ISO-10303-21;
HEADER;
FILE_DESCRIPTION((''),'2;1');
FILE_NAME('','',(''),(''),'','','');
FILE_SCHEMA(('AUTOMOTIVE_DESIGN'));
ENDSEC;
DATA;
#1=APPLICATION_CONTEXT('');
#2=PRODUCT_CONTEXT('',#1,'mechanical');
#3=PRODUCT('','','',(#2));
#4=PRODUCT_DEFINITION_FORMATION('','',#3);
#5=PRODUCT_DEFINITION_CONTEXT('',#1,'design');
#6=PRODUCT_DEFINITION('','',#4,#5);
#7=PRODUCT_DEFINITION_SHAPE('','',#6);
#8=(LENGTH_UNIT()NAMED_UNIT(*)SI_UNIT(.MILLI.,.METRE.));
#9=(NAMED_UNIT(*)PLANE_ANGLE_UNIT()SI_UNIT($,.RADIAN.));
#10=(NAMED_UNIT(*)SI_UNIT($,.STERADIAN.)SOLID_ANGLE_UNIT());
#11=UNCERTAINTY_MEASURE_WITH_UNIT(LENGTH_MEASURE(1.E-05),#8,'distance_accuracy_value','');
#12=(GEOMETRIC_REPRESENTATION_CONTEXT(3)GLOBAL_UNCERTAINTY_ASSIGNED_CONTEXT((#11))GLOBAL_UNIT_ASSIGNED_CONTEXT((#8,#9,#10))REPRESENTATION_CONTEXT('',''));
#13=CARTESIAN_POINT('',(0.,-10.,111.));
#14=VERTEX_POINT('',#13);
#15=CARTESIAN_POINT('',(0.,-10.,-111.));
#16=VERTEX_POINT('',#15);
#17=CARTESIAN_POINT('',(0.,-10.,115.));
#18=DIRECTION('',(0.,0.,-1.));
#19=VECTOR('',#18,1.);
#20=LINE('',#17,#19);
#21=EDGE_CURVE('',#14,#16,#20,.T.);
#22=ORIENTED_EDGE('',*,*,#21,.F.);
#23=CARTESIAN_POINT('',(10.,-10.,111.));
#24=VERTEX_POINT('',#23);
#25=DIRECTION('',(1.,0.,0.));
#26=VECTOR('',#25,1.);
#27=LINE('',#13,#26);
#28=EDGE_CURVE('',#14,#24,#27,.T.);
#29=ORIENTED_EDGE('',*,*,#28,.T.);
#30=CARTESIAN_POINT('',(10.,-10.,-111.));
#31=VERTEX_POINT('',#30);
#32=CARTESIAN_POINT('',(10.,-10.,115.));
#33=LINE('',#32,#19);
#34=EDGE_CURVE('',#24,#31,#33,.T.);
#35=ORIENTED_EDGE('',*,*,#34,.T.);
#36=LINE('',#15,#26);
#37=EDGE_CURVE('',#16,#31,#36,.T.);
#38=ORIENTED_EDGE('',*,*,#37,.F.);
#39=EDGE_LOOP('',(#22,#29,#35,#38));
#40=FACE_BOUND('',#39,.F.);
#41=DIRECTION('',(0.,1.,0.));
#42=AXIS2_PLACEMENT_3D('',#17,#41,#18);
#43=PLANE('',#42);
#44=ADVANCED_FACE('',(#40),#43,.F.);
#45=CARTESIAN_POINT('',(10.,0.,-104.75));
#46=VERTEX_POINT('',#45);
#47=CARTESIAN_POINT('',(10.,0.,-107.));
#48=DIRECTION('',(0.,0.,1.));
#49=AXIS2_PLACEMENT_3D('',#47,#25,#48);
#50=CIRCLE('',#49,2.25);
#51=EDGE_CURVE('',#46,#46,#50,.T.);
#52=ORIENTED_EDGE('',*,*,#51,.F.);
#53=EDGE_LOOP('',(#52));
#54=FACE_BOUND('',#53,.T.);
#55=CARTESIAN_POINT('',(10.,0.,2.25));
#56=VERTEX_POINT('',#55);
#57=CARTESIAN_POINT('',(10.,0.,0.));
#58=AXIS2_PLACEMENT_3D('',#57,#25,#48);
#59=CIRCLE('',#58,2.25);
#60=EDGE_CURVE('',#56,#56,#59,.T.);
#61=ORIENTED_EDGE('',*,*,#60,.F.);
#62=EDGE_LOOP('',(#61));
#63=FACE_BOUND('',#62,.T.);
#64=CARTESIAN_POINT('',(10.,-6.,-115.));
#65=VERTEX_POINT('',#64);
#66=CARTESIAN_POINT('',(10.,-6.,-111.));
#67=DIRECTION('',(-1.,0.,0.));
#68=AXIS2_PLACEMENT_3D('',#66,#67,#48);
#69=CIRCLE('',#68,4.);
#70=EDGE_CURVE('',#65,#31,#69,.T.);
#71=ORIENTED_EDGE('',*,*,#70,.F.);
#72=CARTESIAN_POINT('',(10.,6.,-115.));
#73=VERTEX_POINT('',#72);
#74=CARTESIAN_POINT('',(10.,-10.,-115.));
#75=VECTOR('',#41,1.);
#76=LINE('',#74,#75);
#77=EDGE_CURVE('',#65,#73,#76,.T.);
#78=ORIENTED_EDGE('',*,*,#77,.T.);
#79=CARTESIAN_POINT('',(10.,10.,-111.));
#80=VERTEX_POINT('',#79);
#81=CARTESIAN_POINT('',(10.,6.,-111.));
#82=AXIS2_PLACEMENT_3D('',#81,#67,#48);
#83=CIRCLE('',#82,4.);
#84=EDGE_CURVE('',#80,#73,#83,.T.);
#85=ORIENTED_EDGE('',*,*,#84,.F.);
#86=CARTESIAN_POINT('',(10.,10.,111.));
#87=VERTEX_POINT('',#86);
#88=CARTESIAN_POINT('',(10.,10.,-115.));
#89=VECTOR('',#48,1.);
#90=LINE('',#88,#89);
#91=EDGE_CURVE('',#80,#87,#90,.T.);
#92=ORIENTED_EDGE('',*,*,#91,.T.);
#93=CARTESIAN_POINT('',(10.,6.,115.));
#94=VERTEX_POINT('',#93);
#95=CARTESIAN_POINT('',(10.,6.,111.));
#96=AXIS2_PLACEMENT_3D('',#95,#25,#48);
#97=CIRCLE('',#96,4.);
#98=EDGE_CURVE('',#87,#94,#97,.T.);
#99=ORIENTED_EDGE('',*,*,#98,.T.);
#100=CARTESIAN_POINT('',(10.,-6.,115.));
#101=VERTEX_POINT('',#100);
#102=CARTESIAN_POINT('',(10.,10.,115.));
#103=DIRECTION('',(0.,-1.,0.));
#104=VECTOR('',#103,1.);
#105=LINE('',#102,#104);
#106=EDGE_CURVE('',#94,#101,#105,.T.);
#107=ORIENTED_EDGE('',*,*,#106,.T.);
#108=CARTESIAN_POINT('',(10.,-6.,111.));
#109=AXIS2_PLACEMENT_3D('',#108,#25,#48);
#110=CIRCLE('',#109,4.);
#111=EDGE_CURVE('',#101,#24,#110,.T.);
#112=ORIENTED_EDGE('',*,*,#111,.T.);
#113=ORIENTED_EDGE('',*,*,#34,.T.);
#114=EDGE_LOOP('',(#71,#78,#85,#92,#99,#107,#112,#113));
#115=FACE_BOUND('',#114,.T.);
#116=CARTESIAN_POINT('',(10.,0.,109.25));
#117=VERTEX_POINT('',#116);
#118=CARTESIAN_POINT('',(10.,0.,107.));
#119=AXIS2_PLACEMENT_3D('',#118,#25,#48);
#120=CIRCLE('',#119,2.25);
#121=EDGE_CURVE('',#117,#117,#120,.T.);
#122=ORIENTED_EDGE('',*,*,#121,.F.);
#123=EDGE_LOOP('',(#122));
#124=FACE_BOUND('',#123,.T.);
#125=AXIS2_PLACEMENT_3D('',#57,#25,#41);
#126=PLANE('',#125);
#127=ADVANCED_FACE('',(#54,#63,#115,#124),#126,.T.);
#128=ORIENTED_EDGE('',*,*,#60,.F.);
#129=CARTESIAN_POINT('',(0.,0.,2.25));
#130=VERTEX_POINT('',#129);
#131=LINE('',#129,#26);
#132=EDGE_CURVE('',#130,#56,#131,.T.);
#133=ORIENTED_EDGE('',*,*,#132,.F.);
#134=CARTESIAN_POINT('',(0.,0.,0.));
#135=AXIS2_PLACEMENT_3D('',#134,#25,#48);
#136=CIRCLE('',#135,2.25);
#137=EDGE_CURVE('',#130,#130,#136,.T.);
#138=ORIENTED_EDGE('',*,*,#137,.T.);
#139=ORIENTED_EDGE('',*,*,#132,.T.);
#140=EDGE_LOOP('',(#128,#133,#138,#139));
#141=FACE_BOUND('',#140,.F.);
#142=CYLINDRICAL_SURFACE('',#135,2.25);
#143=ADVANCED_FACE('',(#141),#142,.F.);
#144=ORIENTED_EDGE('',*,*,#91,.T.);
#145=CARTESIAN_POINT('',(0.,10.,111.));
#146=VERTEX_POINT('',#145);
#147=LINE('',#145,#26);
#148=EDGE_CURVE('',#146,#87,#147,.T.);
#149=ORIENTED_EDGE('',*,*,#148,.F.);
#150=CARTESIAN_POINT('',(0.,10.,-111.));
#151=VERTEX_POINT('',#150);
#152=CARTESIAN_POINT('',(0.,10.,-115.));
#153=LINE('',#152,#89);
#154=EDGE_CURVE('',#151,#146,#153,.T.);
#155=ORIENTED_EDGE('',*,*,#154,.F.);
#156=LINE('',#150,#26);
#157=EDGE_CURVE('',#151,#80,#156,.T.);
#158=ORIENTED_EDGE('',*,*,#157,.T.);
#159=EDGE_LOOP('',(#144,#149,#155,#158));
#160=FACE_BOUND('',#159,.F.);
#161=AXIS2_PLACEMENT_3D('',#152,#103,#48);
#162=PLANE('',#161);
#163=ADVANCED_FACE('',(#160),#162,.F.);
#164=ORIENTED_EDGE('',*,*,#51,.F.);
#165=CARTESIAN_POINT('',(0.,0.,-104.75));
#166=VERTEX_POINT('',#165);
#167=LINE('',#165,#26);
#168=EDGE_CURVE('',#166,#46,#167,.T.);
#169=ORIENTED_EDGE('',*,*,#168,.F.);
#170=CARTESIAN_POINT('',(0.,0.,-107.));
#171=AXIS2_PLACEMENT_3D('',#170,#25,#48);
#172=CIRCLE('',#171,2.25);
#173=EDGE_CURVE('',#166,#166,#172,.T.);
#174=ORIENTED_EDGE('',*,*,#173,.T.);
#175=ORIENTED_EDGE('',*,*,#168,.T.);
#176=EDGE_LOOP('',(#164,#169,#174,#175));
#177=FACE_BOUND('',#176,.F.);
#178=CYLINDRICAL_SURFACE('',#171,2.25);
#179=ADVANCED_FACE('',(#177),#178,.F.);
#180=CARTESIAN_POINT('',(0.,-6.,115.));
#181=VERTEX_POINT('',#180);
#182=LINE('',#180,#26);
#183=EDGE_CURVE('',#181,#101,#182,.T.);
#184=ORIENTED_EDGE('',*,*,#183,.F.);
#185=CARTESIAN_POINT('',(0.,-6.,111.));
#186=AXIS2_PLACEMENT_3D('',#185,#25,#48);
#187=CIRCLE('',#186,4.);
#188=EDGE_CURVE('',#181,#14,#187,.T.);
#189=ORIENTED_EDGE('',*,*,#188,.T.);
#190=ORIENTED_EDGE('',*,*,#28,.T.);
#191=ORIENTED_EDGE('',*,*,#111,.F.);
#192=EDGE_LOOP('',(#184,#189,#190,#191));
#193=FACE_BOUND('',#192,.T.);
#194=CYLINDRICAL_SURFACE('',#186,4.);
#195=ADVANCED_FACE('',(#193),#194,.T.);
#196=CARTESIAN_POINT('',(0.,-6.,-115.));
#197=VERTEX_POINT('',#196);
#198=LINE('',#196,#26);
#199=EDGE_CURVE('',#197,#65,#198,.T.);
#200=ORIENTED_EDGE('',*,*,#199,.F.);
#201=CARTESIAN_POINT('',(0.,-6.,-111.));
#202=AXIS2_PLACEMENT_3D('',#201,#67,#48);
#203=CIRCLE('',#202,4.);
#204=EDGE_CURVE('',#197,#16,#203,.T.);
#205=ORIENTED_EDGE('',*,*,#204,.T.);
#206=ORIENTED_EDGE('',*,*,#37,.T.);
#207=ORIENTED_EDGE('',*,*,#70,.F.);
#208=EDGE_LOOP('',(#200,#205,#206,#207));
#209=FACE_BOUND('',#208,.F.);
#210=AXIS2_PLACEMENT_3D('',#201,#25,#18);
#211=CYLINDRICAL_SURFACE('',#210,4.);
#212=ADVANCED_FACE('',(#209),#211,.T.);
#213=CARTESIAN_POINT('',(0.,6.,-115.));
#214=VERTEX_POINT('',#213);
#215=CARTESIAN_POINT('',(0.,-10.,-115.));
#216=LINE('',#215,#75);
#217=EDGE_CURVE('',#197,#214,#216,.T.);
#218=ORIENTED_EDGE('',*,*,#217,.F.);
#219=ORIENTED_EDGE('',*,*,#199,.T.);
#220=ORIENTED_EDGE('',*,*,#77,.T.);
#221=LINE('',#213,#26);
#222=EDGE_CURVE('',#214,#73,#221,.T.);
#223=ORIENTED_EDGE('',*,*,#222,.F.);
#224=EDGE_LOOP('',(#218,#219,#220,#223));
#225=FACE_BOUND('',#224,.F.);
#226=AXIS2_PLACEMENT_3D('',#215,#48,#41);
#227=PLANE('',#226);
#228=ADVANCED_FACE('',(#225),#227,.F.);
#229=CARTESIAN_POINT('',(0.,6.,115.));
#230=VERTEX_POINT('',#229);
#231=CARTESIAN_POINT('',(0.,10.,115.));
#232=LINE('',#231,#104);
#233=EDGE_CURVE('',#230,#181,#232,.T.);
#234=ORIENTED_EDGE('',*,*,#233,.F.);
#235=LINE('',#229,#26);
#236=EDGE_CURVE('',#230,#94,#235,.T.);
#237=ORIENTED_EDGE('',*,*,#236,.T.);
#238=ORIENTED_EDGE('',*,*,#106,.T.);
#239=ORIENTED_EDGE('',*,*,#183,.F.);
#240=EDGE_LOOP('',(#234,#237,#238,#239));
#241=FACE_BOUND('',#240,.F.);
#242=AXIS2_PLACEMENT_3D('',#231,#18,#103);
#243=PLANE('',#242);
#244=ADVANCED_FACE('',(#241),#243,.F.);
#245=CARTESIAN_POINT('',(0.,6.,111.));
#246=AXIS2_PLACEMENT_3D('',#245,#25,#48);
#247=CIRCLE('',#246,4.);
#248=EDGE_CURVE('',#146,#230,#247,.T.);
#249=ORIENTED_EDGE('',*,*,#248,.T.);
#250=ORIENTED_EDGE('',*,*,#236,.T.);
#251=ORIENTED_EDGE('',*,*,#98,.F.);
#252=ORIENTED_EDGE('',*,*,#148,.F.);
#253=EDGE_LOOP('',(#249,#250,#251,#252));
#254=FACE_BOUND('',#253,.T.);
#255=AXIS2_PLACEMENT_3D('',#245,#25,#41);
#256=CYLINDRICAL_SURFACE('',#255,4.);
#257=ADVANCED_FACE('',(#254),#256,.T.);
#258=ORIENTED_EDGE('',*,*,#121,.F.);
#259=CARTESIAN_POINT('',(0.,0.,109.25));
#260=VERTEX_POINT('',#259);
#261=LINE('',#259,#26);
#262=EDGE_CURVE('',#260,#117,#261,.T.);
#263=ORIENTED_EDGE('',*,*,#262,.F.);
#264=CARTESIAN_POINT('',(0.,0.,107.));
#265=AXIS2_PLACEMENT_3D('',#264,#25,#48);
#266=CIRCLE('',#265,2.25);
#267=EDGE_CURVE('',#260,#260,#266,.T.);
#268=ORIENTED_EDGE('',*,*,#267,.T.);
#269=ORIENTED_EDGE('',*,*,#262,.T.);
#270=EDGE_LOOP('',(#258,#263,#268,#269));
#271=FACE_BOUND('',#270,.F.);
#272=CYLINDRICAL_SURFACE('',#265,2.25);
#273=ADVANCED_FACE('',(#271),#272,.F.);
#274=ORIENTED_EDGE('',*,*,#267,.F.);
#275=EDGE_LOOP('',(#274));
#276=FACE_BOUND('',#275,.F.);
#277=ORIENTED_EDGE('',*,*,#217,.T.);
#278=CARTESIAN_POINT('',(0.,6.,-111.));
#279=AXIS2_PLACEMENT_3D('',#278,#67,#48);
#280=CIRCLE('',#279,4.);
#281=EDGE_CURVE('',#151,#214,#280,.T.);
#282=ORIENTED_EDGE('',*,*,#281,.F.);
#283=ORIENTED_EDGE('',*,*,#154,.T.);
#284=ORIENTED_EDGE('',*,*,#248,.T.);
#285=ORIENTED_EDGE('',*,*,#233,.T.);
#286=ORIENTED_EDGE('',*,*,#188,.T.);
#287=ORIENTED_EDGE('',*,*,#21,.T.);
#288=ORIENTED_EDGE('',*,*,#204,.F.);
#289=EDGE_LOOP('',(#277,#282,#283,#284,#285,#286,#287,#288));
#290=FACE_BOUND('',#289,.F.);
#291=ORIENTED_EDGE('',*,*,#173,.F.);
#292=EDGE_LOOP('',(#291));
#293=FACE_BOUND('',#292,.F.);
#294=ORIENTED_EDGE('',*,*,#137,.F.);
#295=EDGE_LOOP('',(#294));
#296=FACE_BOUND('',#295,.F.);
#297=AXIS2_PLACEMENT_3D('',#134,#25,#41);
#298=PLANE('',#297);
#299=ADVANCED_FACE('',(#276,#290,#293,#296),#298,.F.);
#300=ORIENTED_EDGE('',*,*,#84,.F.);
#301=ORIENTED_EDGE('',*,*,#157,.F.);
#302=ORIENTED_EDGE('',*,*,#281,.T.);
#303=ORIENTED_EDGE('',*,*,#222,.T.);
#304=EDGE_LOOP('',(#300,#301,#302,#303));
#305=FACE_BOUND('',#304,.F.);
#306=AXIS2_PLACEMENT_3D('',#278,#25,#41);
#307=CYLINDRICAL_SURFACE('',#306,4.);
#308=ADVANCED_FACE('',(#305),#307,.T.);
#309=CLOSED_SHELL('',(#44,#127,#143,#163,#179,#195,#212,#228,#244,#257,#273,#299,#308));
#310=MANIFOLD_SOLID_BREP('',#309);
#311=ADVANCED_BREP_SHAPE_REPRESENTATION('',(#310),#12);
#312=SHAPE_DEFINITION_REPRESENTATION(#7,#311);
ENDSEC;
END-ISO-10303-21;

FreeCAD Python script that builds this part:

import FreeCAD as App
import Part
import Sketcher
from FreeCAD import Vector


def edges_at(feature, points):
    """Names of the edges that pass closest to the given points."""
    edges = feature.Shape.Edges
    near = lambda p: min(range(len(edges)), key=lambda i: edges[i].distToShape(Part.Vertex(*p))[0])
    return sorted({f"Edge{near(p) + 1}" for p in points})

doc = App.newDocument("Part")
body = doc.addObject("PartDesign::Body", "Body")

sketch1 = doc.addObject("Sketcher::SketchObject", "Sketch")
body.addObject(sketch1)
sketch1.AttachmentSupport = (doc.YZ_Plane, [""])
sketch1.MapMode = "FlatFace"
sketch1.addGeometry([
    Part.LineSegment(Vector(10, -115, 0), Vector(10, 115, 0)),
    Part.LineSegment(Vector(10, 115, 0), Vector(-10, 115, 0)),
    Part.LineSegment(Vector(-10, 115, 0), Vector(-10, -115, 0)),
    Part.LineSegment(Vector(-10, -115, 0), Vector(10, -115, 0)),
], False)
sketch1.addConstraint([
    Sketcher.Constraint("Coincident", 0, 2, 1, 1),
    Sketcher.Constraint("Coincident", 1, 2, 2, 1),
    Sketcher.Constraint("Coincident", 2, 2, 3, 1),
    Sketcher.Constraint("Coincident", 3, 2, 0, 1),
    Sketcher.Constraint("Vertical", 0),
    Sketcher.Constraint("Horizontal", 1),
    Sketcher.Constraint("Vertical", 2),
    Sketcher.Constraint("Horizontal", 3),
    Sketcher.Constraint("Symmetric", 0, 2, 2, 2, -1, 1),
    Sketcher.Constraint("DistanceX", 1, 2, 1, 1, 20.0),
    Sketcher.Constraint("DistanceY", 0, 1, 0, 2, 230.0),
])
pad1 = doc.addObject("PartDesign::Pad", "Pad")
body.addObject(pad1)
pad1.Profile = sketch1
pad1.Length = 10

sketch2 = doc.addObject("Sketcher::SketchObject", "Sketch001")
body.addObject(sketch2)
sketch2.AttachmentSupport = (doc.YZ_Plane, [""])
sketch2.MapMode = "FlatFace"
sketch2.addGeometry([
    Part.Circle(Vector(0, -107, 0), Vector(0, 0, 1), 2.2),
    Part.Circle(Vector(0, 0, 0), Vector(0, 0, 1), 2.2),
    Part.Circle(Vector(0, 107, 0), Vector(0, 0, 1), 2.2),
], False)
sketch2.addConstraint([
    Sketcher.Constraint("Coincident", 1, 3, -1, 1),
    Sketcher.Constraint("Equal", 0, 1),
    Sketcher.Constraint("Equal", 1, 2),
    Sketcher.Constraint("Symmetric", 0, 3, 2, 3, -1, 1),
    Sketcher.Constraint("PointOnObject", 0, 3, -2),
    Sketcher.Constraint("Diameter", 0, 4.5),
    Sketcher.Constraint("DistanceY", 0, 3, -1, 1, 107.0),
])
doc.recompute()
hole = doc.addObject("PartDesign::Hole", "Hole")
body.addObject(hole)
hole.Profile = sketch2
hole.ThreadType = "None"
hole.Diameter = 4.5
hole.DepthType = "ThroughAll"
hole.Reversed = True
doc.recompute()

fillet = doc.addObject("PartDesign::Fillet", "Fillet")
body.addObject(fillet)
fillet.Base = (hole, edges_at(hole, [
    (5, 10, -115),
    (5, -10, -115),
    (5, -10, 115),
    (5, 10, 115),
]))
fillet.Radius = 4

doc.recompute()
